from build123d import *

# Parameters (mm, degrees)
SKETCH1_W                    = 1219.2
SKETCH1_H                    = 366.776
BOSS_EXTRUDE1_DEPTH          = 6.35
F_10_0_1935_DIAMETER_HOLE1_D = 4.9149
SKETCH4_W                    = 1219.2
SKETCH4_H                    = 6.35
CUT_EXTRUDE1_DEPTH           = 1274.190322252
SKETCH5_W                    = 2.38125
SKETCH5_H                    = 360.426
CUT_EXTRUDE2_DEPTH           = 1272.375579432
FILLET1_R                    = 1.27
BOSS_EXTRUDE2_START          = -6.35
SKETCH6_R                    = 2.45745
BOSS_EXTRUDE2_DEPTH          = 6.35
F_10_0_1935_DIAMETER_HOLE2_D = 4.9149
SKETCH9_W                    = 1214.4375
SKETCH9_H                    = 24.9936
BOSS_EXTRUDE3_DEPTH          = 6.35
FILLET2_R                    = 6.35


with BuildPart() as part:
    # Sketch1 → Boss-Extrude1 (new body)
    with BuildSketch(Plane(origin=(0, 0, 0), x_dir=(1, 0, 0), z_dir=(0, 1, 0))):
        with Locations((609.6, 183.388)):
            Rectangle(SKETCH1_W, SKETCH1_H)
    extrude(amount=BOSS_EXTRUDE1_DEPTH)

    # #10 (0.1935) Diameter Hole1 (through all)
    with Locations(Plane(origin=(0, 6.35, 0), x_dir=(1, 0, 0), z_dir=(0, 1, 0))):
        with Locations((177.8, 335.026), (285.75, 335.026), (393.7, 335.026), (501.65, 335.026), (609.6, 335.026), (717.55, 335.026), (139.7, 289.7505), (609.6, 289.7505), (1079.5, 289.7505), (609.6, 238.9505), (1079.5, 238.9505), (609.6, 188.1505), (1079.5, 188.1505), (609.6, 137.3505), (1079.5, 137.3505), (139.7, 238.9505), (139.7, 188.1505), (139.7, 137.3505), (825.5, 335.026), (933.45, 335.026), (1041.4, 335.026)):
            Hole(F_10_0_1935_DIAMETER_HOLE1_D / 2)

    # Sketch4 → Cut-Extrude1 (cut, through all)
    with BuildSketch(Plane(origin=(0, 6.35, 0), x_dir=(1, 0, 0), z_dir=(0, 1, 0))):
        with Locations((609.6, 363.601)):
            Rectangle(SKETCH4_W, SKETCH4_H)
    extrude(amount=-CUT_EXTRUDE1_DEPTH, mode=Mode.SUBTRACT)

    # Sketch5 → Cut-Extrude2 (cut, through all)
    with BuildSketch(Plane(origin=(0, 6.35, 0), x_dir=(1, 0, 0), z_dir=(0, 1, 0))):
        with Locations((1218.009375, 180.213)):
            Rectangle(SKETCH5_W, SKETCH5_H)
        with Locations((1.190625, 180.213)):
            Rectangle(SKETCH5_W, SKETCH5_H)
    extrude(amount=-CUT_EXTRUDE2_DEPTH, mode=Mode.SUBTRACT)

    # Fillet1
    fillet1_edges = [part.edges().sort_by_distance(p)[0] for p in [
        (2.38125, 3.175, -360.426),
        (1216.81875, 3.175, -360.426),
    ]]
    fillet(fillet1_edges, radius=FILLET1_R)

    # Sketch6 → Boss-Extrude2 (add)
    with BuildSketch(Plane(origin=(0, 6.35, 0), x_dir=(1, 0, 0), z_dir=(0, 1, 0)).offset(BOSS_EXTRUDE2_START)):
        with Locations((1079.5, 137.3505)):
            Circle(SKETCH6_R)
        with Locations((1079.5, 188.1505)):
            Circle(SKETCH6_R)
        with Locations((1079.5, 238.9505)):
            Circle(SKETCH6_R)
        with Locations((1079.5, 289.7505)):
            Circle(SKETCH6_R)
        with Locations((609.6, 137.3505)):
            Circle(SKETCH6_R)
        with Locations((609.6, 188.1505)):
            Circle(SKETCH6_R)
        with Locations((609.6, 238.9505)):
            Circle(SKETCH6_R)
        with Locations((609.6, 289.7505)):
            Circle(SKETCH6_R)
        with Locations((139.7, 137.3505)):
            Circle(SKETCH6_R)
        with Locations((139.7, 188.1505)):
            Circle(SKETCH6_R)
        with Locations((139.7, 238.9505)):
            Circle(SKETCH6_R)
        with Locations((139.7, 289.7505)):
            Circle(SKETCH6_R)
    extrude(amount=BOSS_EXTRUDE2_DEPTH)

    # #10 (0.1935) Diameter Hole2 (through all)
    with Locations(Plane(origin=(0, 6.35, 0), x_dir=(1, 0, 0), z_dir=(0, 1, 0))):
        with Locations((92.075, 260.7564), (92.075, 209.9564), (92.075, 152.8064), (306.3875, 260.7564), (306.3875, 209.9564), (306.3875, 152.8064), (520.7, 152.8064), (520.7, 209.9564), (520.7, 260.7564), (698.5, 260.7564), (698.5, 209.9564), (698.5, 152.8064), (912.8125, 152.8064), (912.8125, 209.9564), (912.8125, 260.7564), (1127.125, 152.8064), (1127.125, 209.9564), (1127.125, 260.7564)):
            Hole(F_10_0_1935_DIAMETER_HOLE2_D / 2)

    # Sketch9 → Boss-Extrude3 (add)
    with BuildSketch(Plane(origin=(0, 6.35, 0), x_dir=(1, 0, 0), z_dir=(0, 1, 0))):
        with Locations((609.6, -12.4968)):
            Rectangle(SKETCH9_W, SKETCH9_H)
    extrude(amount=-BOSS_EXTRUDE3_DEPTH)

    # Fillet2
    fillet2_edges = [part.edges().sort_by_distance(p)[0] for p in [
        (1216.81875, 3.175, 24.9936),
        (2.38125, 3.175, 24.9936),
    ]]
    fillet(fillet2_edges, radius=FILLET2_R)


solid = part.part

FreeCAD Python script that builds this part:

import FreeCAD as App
import Part
import Sketcher

V = App.Vector
Q = App.Units.Quantity


def edges_at(feature, points):
    """Names of the edges that pass closest to the given points."""
    edges = feature.Shape.Edges
    near = lambda p: min(range(len(edges)), key=lambda i: edges[i].distToShape(Part.Vertex(*p))[0])
    return sorted({f"Edge{near(p) + 1}" for p in points})


def add_polygon(sketch, points):
    """Adds a closed chain of lines whose ends are joined by coincident constraints."""
    first, n = sketch.GeometryCount, len(points)
    for a, b in zip(points, points[1:] + points[:1]):
        sketch.addGeometry(Part.LineSegment(App.Vector(*a, 0), App.Vector(*b, 0)), False)
    for i in range(n):
        sketch.addConstraint(Sketcher.Constraint("Coincident", first + i, 2, first + (i + 1) % n, 1))

doc = App.newDocument("Part")
body = doc.addObject("PartDesign::Body", "Body")

# Sketch on XZ plane
sketch1 = body.newObject("Sketcher::SketchObject", "Sketch")
sketch1.AttachmentSupport = (doc.getObject("XZ_Plane"), [""])
sketch1.MapMode = "FlatFace"
add_polygon(sketch1, [(0, -367), (0, 0), (1219, 0), (1219, -367)])  # lines 0-3
sketch1.addConstraint(Sketcher.Constraint("Vertical", 0))
sketch1.addConstraint(Sketcher.Constraint("Horizontal", 1))
sketch1.addConstraint(Sketcher.Constraint("Vertical", 2))
sketch1.addConstraint(Sketcher.Constraint("Horizontal", 3))
sketch1.addConstraint(Sketcher.Constraint("Coincident", 0, 2, -1, 1))
sketch1.addConstraint(Sketcher.Constraint("DistanceX", 1, 1, 1, 2, Q("48 in")))
sketch1.addConstraint(Sketcher.Constraint("DistanceY", 0, 1, 0, 2, Q("14.44 in")))
pad1 = body.newObject("PartDesign::Pad", "Pad")
pad1.Profile = sketch1
pad1.Length = Q("0.25 in")
pad1.Reversed = True

# Sketch on XZ plane
sketch2 = body.newObject("Sketcher::SketchObject", "Sketch001")
sketch2.AttachmentSupport = (doc.getObject("XZ_Plane"), [""])
sketch2.MapMode = "FlatFace"
sketch2.AttachmentOffset = App.Placement(V(0, 0, -0.25 * 25.4), App.Rotation())
sketch2.addGeometry(Part.Circle(V(177.8, -335, 0), V(0, 0, 1), 2.5), False)
sketch2.addGeometry(Part.Circle(V(285.8, -335, 0), V(0, 0, 1), 2.5), False)
sketch2.addGeometry(Part.Circle(V(393.7, -335, 0), V(0, 0, 1), 2.5), False)
sketch2.addGeometry(Part.Circle(V(501.6, -335, 0), V(0, 0, 1), 2.5), False)
sketch2.addGeometry(Part.Circle(V(609.6, -335, 0), V(0, 0, 1), 2.5), False)
sketch2.addGeometry(Part.Circle(V(717.5, -335, 0), V(0, 0, 1), 2.5), False)
sketch2.addGeometry(Part.Circle(V(139.7, -289.8, 0), V(0, 0, 1), 2.5), False)
sketch2.addGeometry(Part.Circle(V(609.6, -289.8, 0), V(0, 0, 1), 2.5), False)
sketch2.addGeometry(Part.Circle(V(1079.5, -289.8, 0), V(0, 0, 1), 2.5), False)
sketch2.addGeometry(Part.Circle(V(609.6, -239, 0), V(0, 0, 1), 2.5), False)
sketch2.addGeometry(Part.Circle(V(1079.5, -239, 0), V(0, 0, 1), 2.5), False)
sketch2.addGeometry(Part.Circle(V(609.6, -188.2, 0), V(0, 0, 1), 2.5), False)
sketch2.addGeometry(Part.Circle(V(1079.5, -188.2, 0), V(0, 0, 1), 2.5), False)
sketch2.addGeometry(Part.Circle(V(609.6, -137.4, 0), V(0, 0, 1), 2.5), False)
sketch2.addGeometry(Part.Circle(V(1079.5, -137.4, 0), V(0, 0, 1), 2.5), False)
sketch2.addGeometry(Part.Circle(V(139.7, -239, 0), V(0, 0, 1), 2.5), False)
sketch2.addGeometry(Part.Circle(V(139.7, -188.2, 0), V(0, 0, 1), 2.5), False)
sketch2.addGeometry(Part.Circle(V(139.7, -137.4, 0), V(0, 0, 1), 2.5), False)
sketch2.addGeometry(Part.Circle(V(825.5, -335, 0), V(0, 0, 1), 2.5), False)
sketch2.addGeometry(Part.Circle(V(933.5, -335, 0), V(0, 0, 1), 2.5), False)
sketch2.addGeometry(Part.Circle(V(1041.4, -335, 0), V(0, 0, 1), 2.5), False)
sketch2.addConstraint(Sketcher.Constraint("Equal", 0, 1))
sketch2.addConstraint(Sketcher.Constraint("Equal", 1, 2))
sketch2.addConstraint(Sketcher.Constraint("Equal", 2, 3))
sketch2.addConstraint(Sketcher.Constraint("Equal", 3, 4))
sketch2.addConstraint(Sketcher.Constraint("Equal", 4, 5))
sketch2.addConstraint(Sketcher.Constraint("Equal", 5, 6))
sketch2.addConstraint(Sketcher.Constraint("Equal", 6, 7))
sketch2.addConstraint(Sketcher.Constraint("Equal", 7, 8))
sketch2.addConstraint(Sketcher.Constraint("Equal", 8, 9))
sketch2.addConstraint(Sketcher.Constraint("Equal", 9, 10))
sketch2.addConstraint(Sketcher.Constraint("Equal", 10, 11))
sketch2.addConstraint(Sketcher.Constraint("Equal", 11, 12))
sketch2.addConstraint(Sketcher.Constraint("Equal", 12, 13))
sketch2.addConstraint(Sketcher.Constraint("Equal", 13, 14))
sketch2.addConstraint(Sketcher.Constraint("Equal", 14, 15))
sketch2.addConstraint(Sketcher.Constraint("Equal", 15, 16))
sketch2.addConstraint(Sketcher.Constraint("Equal", 16, 17))
sketch2.addConstraint(Sketcher.Constraint("Equal", 17, 18))
sketch2.addConstraint(Sketcher.Constraint("Equal", 18, 19))
sketch2.addConstraint(Sketcher.Constraint("Equal", 19, 20))
sketch2.addConstraint(Sketcher.Constraint("Horizontal", 0, 3, 1, 3))
sketch2.addConstraint(Sketcher.Constraint("Horizontal", 1, 3, 2, 3))
sketch2.addConstraint(Sketcher.Constraint("Horizontal", 2, 3, 3, 3))
sketch2.addConstraint(Sketcher.Constraint("Horizontal", 3, 3, 4, 3))
sketch2.addConstraint(Sketcher.Constraint("Horizontal", 4, 3, 5, 3))
sketch2.addConstraint(Sketcher.Constraint("Horizontal", 6, 3, 7, 3))
sketch2.addConstraint(Sketcher.Constraint("Horizontal", 7, 3, 8, 3))
sketch2.addConstraint(Sketcher.Constraint("Horizontal", 9, 3, 10, 3))
sketch2.addConstraint(Sketcher.Constraint("Horizontal", 11, 3, 12, 3))
sketch2.addConstraint(Sketcher.Constraint("Horizontal", 13, 3, 14, 3))
sketch2.addConstraint(Sketcher.Constraint("Horizontal", 10, 3, 15, 3))
sketch2.addConstraint(Sketcher.Constraint("Horizontal", 12, 3, 16, 3))
sketch2.addConstraint(Sketcher.Constraint("Horizontal", 14, 3, 17, 3))
sketch2.addConstraint(Sketcher.Constraint("Horizontal", 5, 3, 18, 3))
sketch2.addConstraint(Sketcher.Constraint("Horizontal", 18, 3, 19, 3))
sketch2.addConstraint(Sketcher.Constraint("Horizontal", 19, 3, 20, 3))
sketch2.addConstraint(Sketcher.Constraint("Vertical", 4, 3, 7, 3))
sketch2.addConstraint(Sketcher.Constraint("Vertical", 7, 3, 9, 3))
sketch2.addConstraint(Sketcher.Constraint("Vertical", 8, 3, 10, 3))
sketch2.addConstraint(Sketcher.Constraint("Vertical", 9, 3, 11, 3))
sketch2.addConstraint(Sketcher.Constraint("Vertical", 10, 3, 12, 3))
sketch2.addConstraint(Sketcher.Constraint("Vertical", 11, 3, 13, 3))
sketch2.addConstraint(Sketcher.Constraint("Vertical", 12, 3, 14, 3))
sketch2.addConstraint(Sketcher.Constraint("Vertical", 6, 3, 15, 3))
sketch2.addConstraint(Sketcher.Constraint("Vertical", 15, 3, 16, 3))
sketch2.addConstraint(Sketcher.Constraint("Vertical", 16, 3, 17, 3))
sketch2.addConstraint(Sketcher.Constraint("DistanceX", -1, 1, 0, 3, Q("7 in")))
sketch2.addConstraint(Sketcher.Constraint("DistanceX", -1, 1, 4, 3, Q("24 in")))
sketch2.addConstraint(Sketcher.Constraint("DistanceX", -1, 1, 20, 3, Q("41 in")))
sketch2.addConstraint(Sketcher.Constraint("DistanceX", 1, 3, 5, 3, Q("17 in")))
sketch2.addConstraint(Sketcher.Constraint("DistanceX", 6, 3, 2, 3, Q("10 in")))
sketch2.addConstraint(Sketcher.Constraint("DistanceX", 2, 3, 8, 3, Q("27 in")))
sketch2.addConstraint(Sketcher.Constraint("DistanceY", 7, 3, 9, 3, Q("2 in")))
sketch2.addConstraint(Sketcher.Constraint("DistanceY", 9, 3, 11, 3, Q("2 in")))
sketch2.addConstraint(Sketcher.Constraint("DistanceY", 11, 3, 13, 3, Q("2 in")))
sketch2.addConstraint(Sketcher.Constraint("DistanceX", 18, 3, 8, 3, Q("10 in")))
sketch2.addConstraint(Sketcher.Constraint("Diameter", 0, Q("0.1935 in")))
sketch2.addConstraint(Sketcher.Constraint("DistanceX", -1, 1, 2, 3, Q("15.5 in")))
sketch2.addConstraint(Sketcher.Constraint("DistanceX", 1, 3, 3, 3, Q("8.5 in")))
sketch2.addConstraint(Sketcher.Constraint("DistanceX", 5, 3, 19, 3, Q("8.5 in")))
sketch2.addConstraint(Sketcher.Constraint("DistanceY", 0, 3, -1, 1, Q("13.19 in")))
sketch2.addConstraint(Sketcher.Constraint("DistanceX", -1, 1, 1, 3, Q("11.25 in")))
sketch2.addConstraint(Sketcher.Constraint("DistanceY", 6, 3, -1, 1, Q("11.4075 in")))
doc.recompute()
hole = body.newObject("PartDesign::Hole", "Hole")
hole.Profile = sketch2
hole.ThreadType = "None"
hole.Diameter = Q("0.1935 in")
hole.DepthType = "ThroughAll"
hole.Reversed = True

# Sketch on XZ plane
sketch3 = body.newObject("Sketcher::SketchObject", "Sketch002")
sketch3.AttachmentSupport = (doc.getObject("XZ_Plane"), [""])
sketch3.MapMode = "FlatFace"
sketch3.AttachmentOffset = App.Placement(V(0, 0, -0.25 * 25.4), App.Rotation())
add_polygon(sketch3, [(0, -367), (0, -360), (1219, -360), (1219, -367)])  # lines 0-3
sketch3.addConstraint(Sketcher.Constraint("Vertical", 0))
sketch3.addConstraint(Sketcher.Constraint("Horizontal", 1))
sketch3.addConstraint(Sketcher.Constraint("Vertical", 2))
sketch3.addConstraint(Sketcher.Constraint("Horizontal", 3))
sketch3.addConstraint(Sketcher.Constraint("PointOnObject", 0, 2, -2))
sketch3.addConstraint(Sketcher.Constraint("DistanceX", 1, 1, 1, 2, Q("48 in")))
sketch3.addConstraint(Sketcher.Constraint("DistanceY", 0, 1, 0, 2, Q("0.25 in")))
sketch3.addConstraint(Sketcher.Constraint("DistanceY", 0, 2, -1, 1, Q("14.19 in")))
pocket1 = body.newObject("PartDesign::Pocket", "Pocket")
pocket1.Profile = sketch3
pocket1.Type = "ThroughAll"
pocket1.Reversed = True

# Sketch on XZ plane
sketch4 = body.newObject("Sketcher::SketchObject", "Sketch003")
sketch4.AttachmentSupport = (doc.getObject("XZ_Plane"), [""])
sketch4.MapMode = "FlatFace"
sketch4.AttachmentOffset = App.Placement(V(0, 0, -0.25 * 25.4), App.Rotation())
add_polygon(sketch4, [(1216.8, -360.4), (1216.8, 0), (1219.2, 0), (1219.2, -360.4)])  # lines 0-3
add_polygon(sketch4, [(0, -360.4), (0, 0), (2.4, 0), (2.4, -360.4)])  # lines 4-7
sketch4.addConstraint(Sketcher.Constraint("Vertical", 0))
sketch4.addConstraint(Sketcher.Constraint("Horizontal", 1))
sketch4.addConstraint(Sketcher.Constraint("Vertical", 2))
sketch4.addConstraint(Sketcher.Constraint("Horizontal", 3))
sketch4.addConstraint(Sketcher.Constraint("Vertical", 4))
sketch4.addConstraint(Sketcher.Constraint("Horizontal", 5))
sketch4.addConstraint(Sketcher.Constraint("Vertical", 6))
sketch4.addConstraint(Sketcher.Constraint("Horizontal", 7))
sketch4.addConstraint(Sketcher.Constraint("Coincident", 4, 2, -1, 1))
sketch4.addConstraint(Sketcher.Constraint("PointOnObject", 0, 2, -1))
sketch4.addConstraint(Sketcher.Constraint("Horizontal", 3, 2, 6, 2))
sketch4.addConstraint(Sketcher.Constraint("Equal", 3, 5))
sketch4.addConstraint(Sketcher.Constraint("DistanceX", -1, 1, 1, 2, Q("48 in")))
sketch4.addConstraint(Sketcher.Constraint("DistanceY", 0, 1, 0, 2, Q("14.19 in")))
sketch4.addConstraint(Sketcher.Constraint("DistanceX", 1, 1, 1, 2, Q("0.09375 in")))
pocket2 = body.newObject("PartDesign::Pocket", "Pocket001")
pocket2.Profile = sketch4
pocket2.Type = "ThroughAll"
pocket2.Reversed = True
doc.recompute()

fillet = body.newObject("PartDesign::Fillet", "Fillet")
fillet.Base = (pocket2, edges_at(pocket2, [(2.381, 3.175, -360.426), (1216.819, 3.175, -360.426)]))
fillet.Radius = Q("0.05 in")

# Sketch on XZ plane
sketch5 = body.newObject("Sketcher::SketchObject", "Sketch004")
sketch5.AttachmentSupport = (doc.getObject("XZ_Plane"), [""])
sketch5.MapMode = "FlatFace"
sketch5.addGeometry(Part.Circle(V(1079.5, -137.4, 0), V(0, 0, 1), 2.5), False)
sketch5.addGeometry(Part.Circle(V(1079.5, -188.2, 0), V(0, 0, 1), 2.5), False)
sketch5.addGeometry(Part.Circle(V(1079.5, -239, 0), V(0, 0, 1), 2.5), False)
sketch5.addGeometry(Part.Circle(V(1079.5, -289.8, 0), V(0, 0, 1), 2.5), False)
sketch5.addGeometry(Part.Circle(V(609.6, -137.4, 0), V(0, 0, 1), 2.5), False)
sketch5.addGeometry(Part.Circle(V(609.6, -188.2, 0), V(0, 0, 1), 2.5), False)
sketch5.addGeometry(Part.Circle(V(609.6, -239, 0), V(0, 0, 1), 2.5), False)
sketch5.addGeometry(Part.Circle(V(609.6, -289.8, 0), V(0, 0, 1), 2.5), False)
sketch5.addGeometry(Part.Circle(V(139.7, -137.4, 0), V(0, 0, 1), 2.5), False)
sketch5.addGeometry(Part.Circle(V(139.7, -188.2, 0), V(0, 0, 1), 2.5), False)
sketch5.addGeometry(Part.Circle(V(139.7, -239, 0), V(0, 0, 1), 2.5), False)
sketch5.addGeometry(Part.Circle(V(139.7, -289.8, 0), V(0, 0, 1), 2.5), False)
sketch5.addConstraint(Sketcher.Constraint("Equal", 0, 1))
sketch5.addConstraint(Sketcher.Constraint("Equal", 1, 2))
sketch5.addConstraint(Sketcher.Constraint("Equal", 2, 3))
sketch5.addConstraint(Sketcher.Constraint("Equal", 3, 4))
sketch5.addConstraint(Sketcher.Constraint("Equal", 4, 5))
sketch5.addConstraint(Sketcher.Constraint("Equal", 5, 6))
sketch5.addConstraint(Sketcher.Constraint("Equal", 6, 7))
sketch5.addConstraint(Sketcher.Constraint("Equal", 7, 8))
sketch5.addConstraint(Sketcher.Constraint("Equal", 8, 9))
sketch5.addConstraint(Sketcher.Constraint("Equal", 9, 10))
sketch5.addConstraint(Sketcher.Constraint("Equal", 10, 11))
sketch5.addConstraint(Sketcher.Constraint("Horizontal", 0, 3, 4, 3))
sketch5.addConstraint(Sketcher.Constraint("Horizontal", 1, 3, 5, 3))
sketch5.addConstraint(Sketcher.Constraint("Horizontal", 2, 3, 6, 3))
sketch5.addConstraint(Sketcher.Constraint("Horizontal", 3, 3, 7, 3))
sketch5.addConstraint(Sketcher.Constraint("Horizontal", 4, 3, 8, 3))
sketch5.addConstraint(Sketcher.Constraint("Horizontal", 5, 3, 9, 3))
sketch5.addConstraint(Sketcher.Constraint("Horizontal", 6, 3, 10, 3))
sketch5.addConstraint(Sketcher.Constraint("Horizontal", 7, 3, 11, 3))
sketch5.addConstraint(Sketcher.Constraint("Vertical", 0, 3, 1, 3))
sketch5.addConstraint(Sketcher.Constraint("Vertical", 1, 3, 2, 3))
sketch5.addConstraint(Sketcher.Constraint("Vertical", 2, 3, 3, 3))
sketch5.addConstraint(Sketcher.Constraint("Vertical", 4, 3, 5, 3))
sketch5.addConstraint(Sketcher.Constraint("Vertical", 5, 3, 6, 3))
sketch5.addConstraint(Sketcher.Constraint("Vertical", 6, 3, 7, 3))
sketch5.addConstraint(Sketcher.Constraint("Vertical", 8, 3, 9, 3))
sketch5.addConstraint(Sketcher.Constraint("Vertical", 9, 3, 10, 3))
sketch5.addConstraint(Sketcher.Constraint("Vertical", 10, 3, 11, 3))
sketch5.addConstraint(Sketcher.Constraint("DistanceX", -1, 1, 4, 3, Q("24 in")))
sketch5.addConstraint(Sketcher.Constraint("DistanceY", 1, 3, 0, 3, Q("2 in")))
sketch5.addConstraint(Sketcher.Constraint("DistanceY", 2, 3, 1, 3, Q("2 in")))
sketch5.addConstraint(Sketcher.Constraint("DistanceY", 3, 3, 2, 3, Q("2 in")))
sketch5.addConstraint(Sketcher.Constraint("DistanceX", 8, 3, 0, 3, Q("37 in")))
sketch5.addConstraint(Sketcher.Constraint("Diameter", 0, Q("0.1935 in")))
sketch5.addConstraint(Sketcher.Constraint("DistanceX", -1, 1, 0, 3, Q("42.5 in")))
sketch5.addConstraint(Sketcher.Constraint("DistanceY", 0, 3, -1, 1, Q("5.4075 in")))
pad2 = body.newObject("PartDesign::Pad", "Pad001")
pad2.Profile = sketch5
pad2.Length = Q("0.25 in")
pad2.Reversed = True

# Sketch on XZ plane
sketch6 = body.newObject("Sketcher::SketchObject", "Sketch005")
sketch6.AttachmentSupport = (doc.getObject("XZ_Plane"), [""])
sketch6.MapMode = "FlatFace"
sketch6.AttachmentOffset = App.Placement(V(0, 0, -0.25 * 25.4), App.Rotation())
sketch6.addGeometry(Part.Circle(V(92.1, -260.8, 0), V(0, 0, 1), 2.5), False)
sketch6.addGeometry(Part.Circle(V(92.1, -210, 0), V(0, 0, 1), 2.5), False)
sketch6.addGeometry(Part.Circle(V(92.1, -152.8, 0), V(0, 0, 1), 2.5), False)
sketch6.addGeometry(Part.Circle(V(306.4, -260.8, 0), V(0, 0, 1), 2.5), False)
sketch6.addGeometry(Part.Circle(V(306.4, -210, 0), V(0, 0, 1), 2.5), False)
sketch6.addGeometry(Part.Circle(V(306.4, -152.8, 0), V(0, 0, 1), 2.5), False)
sketch6.addGeometry(Part.Circle(V(520.7, -152.8, 0), V(0, 0, 1), 2.5), False)
sketch6.addGeometry(Part.Circle(V(520.7, -210, 0), V(0, 0, 1), 2.5), False)
sketch6.addGeometry(Part.Circle(V(520.7, -260.8, 0), V(0, 0, 1), 2.5), False)
sketch6.addGeometry(Part.Circle(V(698.5, -260.8, 0), V(0, 0, 1), 2.5), False)
sketch6.addGeometry(Part.Circle(V(698.5, -210, 0), V(0, 0, 1), 2.5), False)
sketch6.addGeometry(Part.Circle(V(698.5, -152.8, 0), V(0, 0, 1), 2.5), False)
sketch6.addGeometry(Part.Circle(V(912.8, -152.8, 0), V(0, 0, 1), 2.5), False)
sketch6.addGeometry(Part.Circle(V(912.8, -210, 0), V(0, 0, 1), 2.5), False)
sketch6.addGeometry(Part.Circle(V(912.8, -260.8, 0), V(0, 0, 1), 2.5), False)
sketch6.addGeometry(Part.Circle(V(1127.1, -152.8, 0), V(0, 0, 1), 2.5), False)
sketch6.addGeometry(Part.Circle(V(1127.1, -210, 0), V(0, 0, 1), 2.5), False)
sketch6.addGeometry(Part.Circle(V(1127.1, -260.8, 0), V(0, 0, 1), 2.5), False)
sketch6.addConstraint(Sketcher.Constraint("Equal", 0, 1))
sketch6.addConstraint(Sketcher.Constraint("Equal", 1, 2))
sketch6.addConstraint(Sketcher.Constraint("Equal", 2, 3))
sketch6.addConstraint(Sketcher.Constraint("Equal", 3, 4))
sketch6.addConstraint(Sketcher.Constraint("Equal", 4, 5))
sketch6.addConstraint(Sketcher.Constraint("Equal", 5, 6))
sketch6.addConstraint(Sketcher.Constraint("Equal", 6, 7))
sketch6.addConstraint(Sketcher.Constraint("Equal", 7, 8))
sketch6.addConstraint(Sketcher.Constraint("Equal", 8, 9))
sketch6.addConstraint(Sketcher.Constraint("Equal", 9, 10))
sketch6.addConstraint(Sketcher.Constraint("Equal", 10, 11))
sketch6.addConstraint(Sketcher.Constraint("Equal", 11, 12))
sketch6.addConstraint(Sketcher.Constraint("Equal", 12, 13))
sketch6.addConstraint(Sketcher.Constraint("Equal", 13, 14))
sketch6.addConstraint(Sketcher.Constraint("Equal", 14, 15))
sketch6.addConstraint(Sketcher.Constraint("Equal", 15, 16))
sketch6.addConstraint(Sketcher.Constraint("Equal", 16, 17))
sketch6.addConstraint(Sketcher.Constraint("Horizontal", 0, 3, 3, 3))
sketch6.addConstraint(Sketcher.Constraint("Horizontal", 1, 3, 4, 3))
sketch6.addConstraint(Sketcher.Constraint("Horizontal", 2, 3, 5, 3))
sketch6.addConstraint(Sketcher.Constraint("Horizontal", 5, 3, 6, 3))
sketch6.addConstraint(Sketcher.Constraint("Horizontal", 4, 3, 7, 3))
sketch6.addConstraint(Sketcher.Constraint("Horizontal", 3, 3, 8, 3))
sketch6.addConstraint(Sketcher.Constraint("Horizontal", 8, 3, 9, 3))
sketch6.addConstraint(Sketcher.Constraint("Horizontal", 7, 3, 10, 3))
sketch6.addConstraint(Sketcher.Constraint("Horizontal", 6, 3, 11, 3))
sketch6.addConstraint(Sketcher.Constraint("Horizontal", 11, 3, 12, 3))
sketch6.addConstraint(Sketcher.Constraint("Horizontal", 10, 3, 13, 3))
sketch6.addConstraint(Sketcher.Constraint("Horizontal", 9, 3, 14, 3))
sketch6.addConstraint(Sketcher.Constraint("Horizontal", 12, 3, 15, 3))
sketch6.addConstraint(Sketcher.Constraint("Horizontal", 13, 3, 16, 3))
sketch6.addConstraint(Sketcher.Constraint("Horizontal", 14, 3, 17, 3))
sketch6.addConstraint(Sketcher.Constraint("Vertical", 0, 3, 1, 3))
sketch6.addConstraint(Sketcher.Constraint("Vertical", 1, 3, 2, 3))
sketch6.addConstraint(Sketcher.Constraint("Vertical", 3, 3, 4, 3))
sketch6.addConstraint(Sketcher.Constraint("Vertical", 4, 3, 5, 3))
sketch6.addConstraint(Sketcher.Constraint("Vertical", 6, 3, 7, 3))
sketch6.addConstraint(Sketcher.Constraint("Vertical", 7, 3, 8, 3))
sketch6.addConstraint(Sketcher.Constraint("Vertical", 9, 3, 10, 3))
sketch6.addConstraint(Sketcher.Constraint("Vertical", 10, 3, 11, 3))
sketch6.addConstraint(Sketcher.Constraint("Vertical", 12, 3, 13, 3))
sketch6.addConstraint(Sketcher.Constraint("Vertical", 13, 3, 14, 3))
sketch6.addConstraint(Sketcher.Constraint("Vertical", 15, 3, 16, 3))
sketch6.addConstraint(Sketcher.Constraint("Vertical", 16, 3, 17, 3))
sketch6.addConstraint(Sketcher.Constraint("DistanceY", 0, 3, 1, 3, Q("2 in")))
sketch6.addConstraint(Sketcher.Constraint("DistanceX", 8, 3, 9, 3, Q("7 in")))
sketch6.addConstraint(Sketcher.Constraint("Diameter", 0, Q("0.1935 in")))
sketch6.addConstraint(Sketcher.Constraint("DistanceX", -1, 1, 6, 3, Q("20.5 in")))
sketch6.addConstraint(Sketcher.Constraint("DistanceY", 1, 3, 2, 3, Q("2.25 in")))
sketch6.addConstraint(Sketcher.Constraint("DistanceX", -1, 1, 0, 3, Q("3.625 in")))
sketch6.addConstraint(Sketcher.Constraint("DistanceY", 0, 3, -1, 1, Q("10.266 in")))
sketch6.addConstraint(Sketcher.Constraint("DistanceX", -1, 1, 3, 3, Q("12.0625 in")))
sketch6.addConstraint(Sketcher.Constraint("DistanceX", -1, 1, 12, 3, Q("35.9375 in")))
sketch6.addConstraint(Sketcher.Constraint("DistanceX", -1, 1, 15, 3, Q("44.375 in")))
doc.recompute()
hole2 = body.newObject("PartDesign::Hole", "Hole001")
hole2.Profile = sketch6
hole2.ThreadType = "None"
hole2.Diameter = Q("0.1935 in")
hole2.DepthType = "ThroughAll"
hole2.Reversed = True

# Sketch on XZ plane
sketch7 = body.newObject("Sketcher::SketchObject", "Sketch006")
sketch7.AttachmentSupport = (doc.getObject("XZ_Plane"), [""])
sketch7.MapMode = "FlatFace"
sketch7.AttachmentOffset = App.Placement(V(0, 0, -0.25 * 25.4), App.Rotation())
add_polygon(sketch7, [(2, 0), (2, 25), (1217, 25), (1217, 0)])  # lines 0-3
sketch7.addConstraint(Sketcher.Constraint("Vertical", 0))
sketch7.addConstraint(Sketcher.Constraint("Horizontal", 1))
sketch7.addConstraint(Sketcher.Constraint("Vertical", 2))
sketch7.addConstraint(Sketcher.Constraint("Horizontal", 3))
sketch7.addConstraint(Sketcher.Constraint("PointOnObject", 2, 2, -1))
sketch7.addConstraint(Sketcher.Constraint("DistanceX", 1, 1, 1, 2, Q("47.8125 in")))
sketch7.addConstraint(Sketcher.Constraint("DistanceY", 0, 1, 0, 2, Q("0.984 in")))
sketch7.addConstraint(Sketcher.Constraint("DistanceX", -1, 1, 0, 2, Q("0.09375 in")))
pad3 = body.newObject("PartDesign::Pad", "Pad002")
pad3.Profile = sketch7
pad3.Length = Q("0.25 in")
doc.recompute()

fillet2 = body.newObject("PartDesign::Fillet", "Fillet001")
fillet2.Base = (pad3, edges_at(pad3, [(1216.819, 3.175, 24.994), (2.381, 3.175, 24.994)]))
fillet2.Radius = Q("0.25 in")

doc.recompute()
